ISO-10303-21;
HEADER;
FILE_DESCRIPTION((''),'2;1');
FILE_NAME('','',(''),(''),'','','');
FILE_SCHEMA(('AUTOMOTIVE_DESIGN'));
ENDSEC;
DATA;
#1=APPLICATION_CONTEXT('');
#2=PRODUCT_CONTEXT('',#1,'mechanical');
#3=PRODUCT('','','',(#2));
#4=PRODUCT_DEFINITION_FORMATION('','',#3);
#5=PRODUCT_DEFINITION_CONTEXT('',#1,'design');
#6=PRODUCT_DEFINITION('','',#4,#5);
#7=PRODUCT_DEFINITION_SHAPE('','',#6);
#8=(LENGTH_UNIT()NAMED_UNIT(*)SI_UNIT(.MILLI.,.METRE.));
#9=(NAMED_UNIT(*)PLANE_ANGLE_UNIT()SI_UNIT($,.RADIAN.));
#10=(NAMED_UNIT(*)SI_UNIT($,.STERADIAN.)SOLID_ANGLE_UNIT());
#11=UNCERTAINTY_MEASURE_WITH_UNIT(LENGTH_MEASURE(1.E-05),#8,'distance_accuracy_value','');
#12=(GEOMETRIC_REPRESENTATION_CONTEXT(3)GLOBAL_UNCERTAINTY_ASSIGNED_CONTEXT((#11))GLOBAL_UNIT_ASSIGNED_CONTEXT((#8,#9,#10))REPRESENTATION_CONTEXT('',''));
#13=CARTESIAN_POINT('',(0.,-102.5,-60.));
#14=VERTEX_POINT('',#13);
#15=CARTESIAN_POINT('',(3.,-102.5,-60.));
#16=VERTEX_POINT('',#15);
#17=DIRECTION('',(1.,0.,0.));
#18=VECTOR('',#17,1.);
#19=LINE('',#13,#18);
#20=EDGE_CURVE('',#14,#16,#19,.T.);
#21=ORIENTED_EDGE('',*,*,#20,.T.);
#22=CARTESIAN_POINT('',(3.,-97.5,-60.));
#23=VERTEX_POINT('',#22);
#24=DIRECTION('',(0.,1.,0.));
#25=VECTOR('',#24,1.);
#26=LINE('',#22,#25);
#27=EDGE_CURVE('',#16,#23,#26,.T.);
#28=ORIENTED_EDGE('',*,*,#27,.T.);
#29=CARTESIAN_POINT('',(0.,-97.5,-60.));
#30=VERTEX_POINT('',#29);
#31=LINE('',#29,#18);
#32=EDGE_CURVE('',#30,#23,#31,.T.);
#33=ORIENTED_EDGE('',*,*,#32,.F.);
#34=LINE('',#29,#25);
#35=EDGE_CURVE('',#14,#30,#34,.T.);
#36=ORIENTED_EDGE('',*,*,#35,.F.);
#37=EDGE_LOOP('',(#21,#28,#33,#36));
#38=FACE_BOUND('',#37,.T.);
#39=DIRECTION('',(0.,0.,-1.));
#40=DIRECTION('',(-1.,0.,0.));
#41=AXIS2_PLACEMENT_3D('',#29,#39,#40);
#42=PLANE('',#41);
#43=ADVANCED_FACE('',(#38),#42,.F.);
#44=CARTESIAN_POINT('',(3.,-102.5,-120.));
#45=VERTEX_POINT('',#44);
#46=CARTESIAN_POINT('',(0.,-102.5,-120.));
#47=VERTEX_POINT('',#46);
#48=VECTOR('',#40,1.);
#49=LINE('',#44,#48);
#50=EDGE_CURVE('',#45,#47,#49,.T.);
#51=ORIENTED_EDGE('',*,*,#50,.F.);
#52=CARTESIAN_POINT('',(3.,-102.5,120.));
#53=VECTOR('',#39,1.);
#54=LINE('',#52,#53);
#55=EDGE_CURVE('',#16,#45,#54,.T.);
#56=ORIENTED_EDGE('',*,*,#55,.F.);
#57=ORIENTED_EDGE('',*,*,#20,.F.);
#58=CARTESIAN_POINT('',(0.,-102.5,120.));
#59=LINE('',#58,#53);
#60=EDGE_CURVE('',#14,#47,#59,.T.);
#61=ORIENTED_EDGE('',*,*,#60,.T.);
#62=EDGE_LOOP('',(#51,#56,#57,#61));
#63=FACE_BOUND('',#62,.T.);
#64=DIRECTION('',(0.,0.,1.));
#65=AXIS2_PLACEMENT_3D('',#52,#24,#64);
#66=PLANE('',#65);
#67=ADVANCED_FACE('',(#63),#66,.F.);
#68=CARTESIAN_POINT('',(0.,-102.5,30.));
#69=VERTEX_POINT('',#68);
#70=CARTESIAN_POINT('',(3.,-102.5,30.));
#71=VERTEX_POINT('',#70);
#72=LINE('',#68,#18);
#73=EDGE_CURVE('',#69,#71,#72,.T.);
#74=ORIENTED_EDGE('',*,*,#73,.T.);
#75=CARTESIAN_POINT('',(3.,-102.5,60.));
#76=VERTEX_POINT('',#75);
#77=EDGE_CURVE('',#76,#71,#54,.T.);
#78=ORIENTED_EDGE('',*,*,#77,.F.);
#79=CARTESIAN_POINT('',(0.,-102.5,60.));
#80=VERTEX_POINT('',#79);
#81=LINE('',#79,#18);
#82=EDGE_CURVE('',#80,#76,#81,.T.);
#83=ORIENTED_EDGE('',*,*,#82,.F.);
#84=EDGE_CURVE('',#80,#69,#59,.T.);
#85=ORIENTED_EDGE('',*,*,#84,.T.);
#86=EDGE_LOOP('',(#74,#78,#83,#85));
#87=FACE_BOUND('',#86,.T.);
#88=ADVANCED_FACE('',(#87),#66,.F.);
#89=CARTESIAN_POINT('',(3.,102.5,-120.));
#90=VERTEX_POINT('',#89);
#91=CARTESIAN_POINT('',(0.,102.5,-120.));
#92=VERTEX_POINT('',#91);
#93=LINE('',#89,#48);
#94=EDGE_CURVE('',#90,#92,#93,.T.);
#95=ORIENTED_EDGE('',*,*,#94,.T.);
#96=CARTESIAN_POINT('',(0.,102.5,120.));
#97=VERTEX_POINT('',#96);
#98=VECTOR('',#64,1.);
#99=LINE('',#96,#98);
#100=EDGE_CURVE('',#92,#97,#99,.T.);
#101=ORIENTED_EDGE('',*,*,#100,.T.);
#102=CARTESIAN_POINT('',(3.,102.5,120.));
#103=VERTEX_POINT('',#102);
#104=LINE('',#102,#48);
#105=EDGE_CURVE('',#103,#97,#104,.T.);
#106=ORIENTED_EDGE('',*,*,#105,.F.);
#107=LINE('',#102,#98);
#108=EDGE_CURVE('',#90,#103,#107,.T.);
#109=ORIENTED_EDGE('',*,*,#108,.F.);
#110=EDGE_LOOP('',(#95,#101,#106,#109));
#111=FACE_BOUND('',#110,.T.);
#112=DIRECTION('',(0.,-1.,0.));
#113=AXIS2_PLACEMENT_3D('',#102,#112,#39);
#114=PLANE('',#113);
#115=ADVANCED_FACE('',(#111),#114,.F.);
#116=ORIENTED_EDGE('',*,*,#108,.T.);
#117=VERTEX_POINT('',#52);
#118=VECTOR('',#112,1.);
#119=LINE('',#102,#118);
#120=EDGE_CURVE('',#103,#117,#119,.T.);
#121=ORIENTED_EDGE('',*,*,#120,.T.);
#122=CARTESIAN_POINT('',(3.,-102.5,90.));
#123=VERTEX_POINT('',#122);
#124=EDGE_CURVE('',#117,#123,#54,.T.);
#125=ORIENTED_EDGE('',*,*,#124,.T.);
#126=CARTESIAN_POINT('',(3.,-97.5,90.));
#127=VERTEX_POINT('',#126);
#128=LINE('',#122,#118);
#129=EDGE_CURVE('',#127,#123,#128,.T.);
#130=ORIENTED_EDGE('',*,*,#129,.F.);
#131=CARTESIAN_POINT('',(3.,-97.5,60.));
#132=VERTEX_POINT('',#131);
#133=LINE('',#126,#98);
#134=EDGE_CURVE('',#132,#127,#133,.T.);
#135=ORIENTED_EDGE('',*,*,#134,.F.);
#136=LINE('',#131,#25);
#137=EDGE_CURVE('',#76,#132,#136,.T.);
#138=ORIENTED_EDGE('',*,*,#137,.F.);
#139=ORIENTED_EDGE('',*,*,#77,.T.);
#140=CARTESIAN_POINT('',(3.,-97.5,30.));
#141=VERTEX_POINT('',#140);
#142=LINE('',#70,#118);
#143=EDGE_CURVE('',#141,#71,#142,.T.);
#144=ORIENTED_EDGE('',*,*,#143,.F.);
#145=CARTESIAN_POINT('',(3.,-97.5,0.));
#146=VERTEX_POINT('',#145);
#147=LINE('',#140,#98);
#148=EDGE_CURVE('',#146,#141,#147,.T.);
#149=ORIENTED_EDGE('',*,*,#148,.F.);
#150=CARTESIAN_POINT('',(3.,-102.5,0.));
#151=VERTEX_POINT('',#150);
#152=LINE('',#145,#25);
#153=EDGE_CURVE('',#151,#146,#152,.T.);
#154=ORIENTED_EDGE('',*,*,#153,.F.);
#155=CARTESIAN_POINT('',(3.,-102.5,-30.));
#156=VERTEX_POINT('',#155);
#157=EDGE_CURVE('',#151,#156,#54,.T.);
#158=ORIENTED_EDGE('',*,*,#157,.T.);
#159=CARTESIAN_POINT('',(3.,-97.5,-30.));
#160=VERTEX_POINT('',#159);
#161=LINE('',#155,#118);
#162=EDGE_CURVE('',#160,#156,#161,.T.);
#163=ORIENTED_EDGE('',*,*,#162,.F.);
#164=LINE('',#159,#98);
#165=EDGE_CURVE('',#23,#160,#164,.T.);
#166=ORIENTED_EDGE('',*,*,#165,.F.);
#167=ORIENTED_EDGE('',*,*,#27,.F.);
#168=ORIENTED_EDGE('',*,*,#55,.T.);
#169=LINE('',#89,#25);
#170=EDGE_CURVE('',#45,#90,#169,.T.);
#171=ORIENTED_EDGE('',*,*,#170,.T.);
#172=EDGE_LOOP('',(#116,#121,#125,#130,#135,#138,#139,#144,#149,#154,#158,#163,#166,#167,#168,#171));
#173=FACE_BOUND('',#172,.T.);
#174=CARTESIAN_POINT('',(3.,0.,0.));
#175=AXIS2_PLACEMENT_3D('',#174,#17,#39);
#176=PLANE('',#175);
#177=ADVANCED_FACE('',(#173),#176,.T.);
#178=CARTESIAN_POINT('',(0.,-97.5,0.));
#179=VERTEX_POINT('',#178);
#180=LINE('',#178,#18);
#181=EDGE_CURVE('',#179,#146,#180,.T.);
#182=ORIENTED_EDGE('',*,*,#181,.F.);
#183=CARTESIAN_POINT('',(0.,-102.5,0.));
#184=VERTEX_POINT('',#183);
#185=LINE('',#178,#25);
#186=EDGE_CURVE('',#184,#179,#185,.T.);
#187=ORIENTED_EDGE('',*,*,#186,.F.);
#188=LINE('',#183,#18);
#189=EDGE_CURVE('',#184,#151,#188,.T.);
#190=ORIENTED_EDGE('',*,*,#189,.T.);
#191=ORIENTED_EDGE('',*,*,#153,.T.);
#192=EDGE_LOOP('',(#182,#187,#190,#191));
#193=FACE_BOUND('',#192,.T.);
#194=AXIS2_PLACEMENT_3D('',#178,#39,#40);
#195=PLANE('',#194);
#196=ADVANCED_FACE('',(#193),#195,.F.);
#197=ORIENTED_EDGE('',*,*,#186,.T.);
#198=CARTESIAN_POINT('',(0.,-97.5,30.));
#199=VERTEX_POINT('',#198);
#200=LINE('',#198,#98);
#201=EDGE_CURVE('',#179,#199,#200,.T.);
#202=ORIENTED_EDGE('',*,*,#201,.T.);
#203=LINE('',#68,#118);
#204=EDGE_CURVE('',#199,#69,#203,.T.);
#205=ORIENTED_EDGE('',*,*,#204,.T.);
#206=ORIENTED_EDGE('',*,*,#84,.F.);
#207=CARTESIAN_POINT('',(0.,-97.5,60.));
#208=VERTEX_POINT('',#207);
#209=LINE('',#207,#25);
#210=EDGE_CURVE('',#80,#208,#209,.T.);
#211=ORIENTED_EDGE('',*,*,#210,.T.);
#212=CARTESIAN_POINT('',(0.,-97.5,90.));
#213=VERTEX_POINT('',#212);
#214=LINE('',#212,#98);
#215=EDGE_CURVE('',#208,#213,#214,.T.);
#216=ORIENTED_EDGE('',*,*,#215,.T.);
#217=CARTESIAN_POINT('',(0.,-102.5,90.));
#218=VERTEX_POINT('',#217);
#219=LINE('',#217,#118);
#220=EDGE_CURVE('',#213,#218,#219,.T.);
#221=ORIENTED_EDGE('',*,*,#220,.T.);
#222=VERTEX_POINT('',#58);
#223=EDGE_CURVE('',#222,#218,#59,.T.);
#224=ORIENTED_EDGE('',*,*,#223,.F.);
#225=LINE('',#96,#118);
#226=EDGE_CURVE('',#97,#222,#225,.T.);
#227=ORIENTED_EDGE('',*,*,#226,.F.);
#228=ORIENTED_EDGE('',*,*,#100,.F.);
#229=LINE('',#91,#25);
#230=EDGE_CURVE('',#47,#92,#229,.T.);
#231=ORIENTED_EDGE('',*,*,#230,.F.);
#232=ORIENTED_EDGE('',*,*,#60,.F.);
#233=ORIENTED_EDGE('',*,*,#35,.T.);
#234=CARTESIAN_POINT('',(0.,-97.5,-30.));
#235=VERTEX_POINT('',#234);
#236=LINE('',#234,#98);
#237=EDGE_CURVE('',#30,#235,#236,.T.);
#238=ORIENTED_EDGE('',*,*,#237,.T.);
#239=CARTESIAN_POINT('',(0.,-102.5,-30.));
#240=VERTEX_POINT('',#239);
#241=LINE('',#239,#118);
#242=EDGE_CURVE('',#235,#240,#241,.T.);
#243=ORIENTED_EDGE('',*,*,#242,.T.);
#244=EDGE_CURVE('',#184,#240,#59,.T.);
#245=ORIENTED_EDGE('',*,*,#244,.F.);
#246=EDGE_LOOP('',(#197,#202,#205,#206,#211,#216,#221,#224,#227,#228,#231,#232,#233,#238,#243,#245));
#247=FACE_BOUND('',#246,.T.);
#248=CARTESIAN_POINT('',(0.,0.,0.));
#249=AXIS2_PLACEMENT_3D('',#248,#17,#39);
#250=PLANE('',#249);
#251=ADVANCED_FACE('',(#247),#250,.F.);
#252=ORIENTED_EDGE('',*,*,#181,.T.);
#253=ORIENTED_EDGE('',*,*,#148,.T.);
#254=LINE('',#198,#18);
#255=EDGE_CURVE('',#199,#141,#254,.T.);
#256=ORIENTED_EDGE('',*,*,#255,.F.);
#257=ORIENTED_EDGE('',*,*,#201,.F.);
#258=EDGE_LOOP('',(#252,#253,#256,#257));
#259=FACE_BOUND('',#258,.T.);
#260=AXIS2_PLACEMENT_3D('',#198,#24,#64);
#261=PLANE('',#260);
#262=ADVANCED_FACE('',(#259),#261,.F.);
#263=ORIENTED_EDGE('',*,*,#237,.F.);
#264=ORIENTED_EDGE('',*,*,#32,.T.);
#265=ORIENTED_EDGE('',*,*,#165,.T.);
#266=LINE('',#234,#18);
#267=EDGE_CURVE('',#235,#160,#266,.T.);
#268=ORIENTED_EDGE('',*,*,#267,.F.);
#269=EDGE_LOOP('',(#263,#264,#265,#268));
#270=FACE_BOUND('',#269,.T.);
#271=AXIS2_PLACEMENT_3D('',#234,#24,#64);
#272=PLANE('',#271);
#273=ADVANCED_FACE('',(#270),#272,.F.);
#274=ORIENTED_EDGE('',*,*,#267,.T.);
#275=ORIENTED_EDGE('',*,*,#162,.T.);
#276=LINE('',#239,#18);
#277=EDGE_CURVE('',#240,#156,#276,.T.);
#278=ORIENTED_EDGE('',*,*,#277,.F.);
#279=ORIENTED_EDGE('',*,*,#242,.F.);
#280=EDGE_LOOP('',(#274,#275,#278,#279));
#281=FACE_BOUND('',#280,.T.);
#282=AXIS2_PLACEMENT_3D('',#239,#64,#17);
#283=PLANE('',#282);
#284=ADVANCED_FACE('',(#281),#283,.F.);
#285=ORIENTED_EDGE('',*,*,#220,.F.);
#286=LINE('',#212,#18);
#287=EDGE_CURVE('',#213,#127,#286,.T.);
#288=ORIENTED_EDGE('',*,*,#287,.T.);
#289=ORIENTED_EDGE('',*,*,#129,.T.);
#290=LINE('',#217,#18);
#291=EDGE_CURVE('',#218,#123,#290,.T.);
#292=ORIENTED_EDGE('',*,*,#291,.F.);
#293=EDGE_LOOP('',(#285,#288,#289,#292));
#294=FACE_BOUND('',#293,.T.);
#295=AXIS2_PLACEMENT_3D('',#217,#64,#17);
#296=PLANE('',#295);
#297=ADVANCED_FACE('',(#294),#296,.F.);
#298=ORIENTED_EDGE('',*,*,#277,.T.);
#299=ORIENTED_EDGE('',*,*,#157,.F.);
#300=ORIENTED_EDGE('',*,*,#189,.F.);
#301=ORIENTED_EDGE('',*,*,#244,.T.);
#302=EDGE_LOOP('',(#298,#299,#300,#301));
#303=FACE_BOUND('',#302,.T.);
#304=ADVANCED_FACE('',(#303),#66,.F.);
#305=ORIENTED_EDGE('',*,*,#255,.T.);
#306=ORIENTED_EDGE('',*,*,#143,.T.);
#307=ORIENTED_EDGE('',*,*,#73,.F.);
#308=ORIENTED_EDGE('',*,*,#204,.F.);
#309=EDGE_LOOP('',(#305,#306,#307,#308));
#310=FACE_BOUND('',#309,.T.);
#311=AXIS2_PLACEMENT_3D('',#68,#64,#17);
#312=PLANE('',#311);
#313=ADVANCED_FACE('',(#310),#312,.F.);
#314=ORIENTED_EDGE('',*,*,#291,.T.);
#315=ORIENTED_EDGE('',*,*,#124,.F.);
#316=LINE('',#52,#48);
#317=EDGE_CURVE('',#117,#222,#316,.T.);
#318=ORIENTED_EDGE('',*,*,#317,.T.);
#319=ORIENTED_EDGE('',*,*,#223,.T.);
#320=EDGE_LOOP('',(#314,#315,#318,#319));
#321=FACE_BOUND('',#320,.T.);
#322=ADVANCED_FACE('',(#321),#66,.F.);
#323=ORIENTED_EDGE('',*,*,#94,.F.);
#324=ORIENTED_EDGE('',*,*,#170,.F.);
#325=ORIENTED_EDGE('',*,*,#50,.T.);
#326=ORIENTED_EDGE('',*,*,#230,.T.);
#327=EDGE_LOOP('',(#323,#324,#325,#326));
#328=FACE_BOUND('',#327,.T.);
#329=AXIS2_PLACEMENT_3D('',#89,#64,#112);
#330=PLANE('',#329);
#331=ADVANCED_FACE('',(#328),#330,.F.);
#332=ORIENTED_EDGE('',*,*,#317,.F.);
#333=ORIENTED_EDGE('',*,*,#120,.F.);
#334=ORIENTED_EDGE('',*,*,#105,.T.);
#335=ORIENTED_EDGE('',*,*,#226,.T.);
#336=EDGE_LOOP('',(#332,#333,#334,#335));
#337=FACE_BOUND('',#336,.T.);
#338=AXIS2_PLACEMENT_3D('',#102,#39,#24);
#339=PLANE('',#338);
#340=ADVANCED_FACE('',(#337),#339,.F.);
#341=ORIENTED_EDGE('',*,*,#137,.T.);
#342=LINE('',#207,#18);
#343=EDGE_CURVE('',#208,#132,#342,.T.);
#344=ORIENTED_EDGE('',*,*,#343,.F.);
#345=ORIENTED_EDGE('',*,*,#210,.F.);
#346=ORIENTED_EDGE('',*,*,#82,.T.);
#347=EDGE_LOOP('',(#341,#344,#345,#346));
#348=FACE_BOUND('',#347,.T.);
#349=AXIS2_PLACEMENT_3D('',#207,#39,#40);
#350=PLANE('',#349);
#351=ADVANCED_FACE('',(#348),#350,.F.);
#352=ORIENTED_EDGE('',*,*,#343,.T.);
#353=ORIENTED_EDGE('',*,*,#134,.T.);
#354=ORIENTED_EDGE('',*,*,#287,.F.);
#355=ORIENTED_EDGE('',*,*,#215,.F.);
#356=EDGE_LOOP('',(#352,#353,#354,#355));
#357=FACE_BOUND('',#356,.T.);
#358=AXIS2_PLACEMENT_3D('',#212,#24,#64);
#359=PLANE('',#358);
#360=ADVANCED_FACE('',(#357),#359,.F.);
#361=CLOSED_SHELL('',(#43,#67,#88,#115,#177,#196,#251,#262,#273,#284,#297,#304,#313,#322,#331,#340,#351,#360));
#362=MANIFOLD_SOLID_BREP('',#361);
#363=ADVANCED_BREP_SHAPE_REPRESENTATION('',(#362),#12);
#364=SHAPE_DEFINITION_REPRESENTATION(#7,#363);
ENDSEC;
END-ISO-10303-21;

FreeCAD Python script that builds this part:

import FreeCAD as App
import Part
import Sketcher
Q = App.Units.Quantity


def add_polygon(sketch, points):
    """Adds a closed chain of lines whose ends are joined by coincident constraints."""
    first, n = sketch.GeometryCount, len(points)
    for a, b in zip(points, points[1:] + points[:1]):
        sketch.addGeometry(Part.LineSegment(App.Vector(*a, 0), App.Vector(*b, 0)), False)
    for i in range(n):
        sketch.addConstraint(Sketcher.Constraint("Coincident", first + i, 2, first + (i + 1) % n, 1))

doc = App.newDocument("Part")
body = doc.addObject("PartDesign::Body", "Body")

# Sketch on YZ plane
sketch1 = doc.addObject("Sketcher::SketchObject", "Sketch")
body.addObject(sketch1)
sketch1.AttachmentSupport = (doc.YZ_Plane, [""])
sketch1.MapMode = "FlatFace"
add_polygon(sketch1, [(102, 120), (-102, 120), (-102, -120), (102, -120)])  # lines 0-3
sketch1.addConstraint(Sketcher.Constraint("Horizontal", 0))
sketch1.addConstraint(Sketcher.Constraint("Vertical", 1))
sketch1.addConstraint(Sketcher.Constraint("Horizontal", 2))
sketch1.addConstraint(Sketcher.Constraint("Vertical", 3))
sketch1.addConstraint(Sketcher.Constraint("Symmetric", 0, 2, 2, 2, -1, 1))
sketch1.addConstraint(Sketcher.Constraint("DistanceX", 0, 2, 0, 1, Q("205 mm")))
sketch1.addConstraint(Sketcher.Constraint("DistanceY", 1, 2, 1, 1, Q("240 mm")))
pad1 = doc.addObject("PartDesign::Pad", "Pad")
body.addObject(pad1)
pad1.Profile = sketch1
pad1.Length = 3

# Sketch on YZ plane
sketch2 = doc.addObject("Sketcher::SketchObject", "Sketch001")
body.addObject(sketch2)
sketch2.AttachmentSupport = (doc.YZ_Plane, [""])
sketch2.MapMode = "FlatFace"
sketch2.AttachmentOffset = App.Placement(App.Vector(0, 0, 3), App.Rotation())
add_polygon(sketch2, [(-98, 90), (-102, 90), (-102, 60), (-98, 60)])  # lines 0-3
add_polygon(sketch2, [(-98, 30), (-102, 30), (-102, 0), (-98, 0)])  # lines 4-7
add_polygon(sketch2, [(-98, -30), (-102, -30), (-102, -60), (-98, -60)])  # lines 8-11
sketch2.addConstraint(Sketcher.Constraint("Horizontal", 0))
sketch2.addConstraint(Sketcher.Constraint("Vertical", 1))
sketch2.addConstraint(Sketcher.Constraint("Horizontal", 2))
sketch2.addConstraint(Sketcher.Constraint("Vertical", 3))
sketch2.addConstraint(Sketcher.Constraint("Horizontal", 4))
sketch2.addConstraint(Sketcher.Constraint("Vertical", 5))
sketch2.addConstraint(Sketcher.Constraint("Horizontal", 6))
sketch2.addConstraint(Sketcher.Constraint("Vertical", 7))
sketch2.addConstraint(Sketcher.Constraint("Horizontal", 8))
sketch2.addConstraint(Sketcher.Constraint("Vertical", 9))
sketch2.addConstraint(Sketcher.Constraint("Horizontal", 10))
sketch2.addConstraint(Sketcher.Constraint("Vertical", 11))
sketch2.addConstraint(Sketcher.Constraint("Symmetric", 4, 2, 8, 2, -1))
sketch2.addConstraint(Sketcher.Constraint("Symmetric", 1, 2, 9, 2, -1))
sketch2.addConstraint(Sketcher.Constraint("PointOnObject", 5, 2, -1))
sketch2.addConstraint(Sketcher.Constraint("Vertical", 3, 2, 6, 2))
sketch2.addConstraint(Sketcher.Constraint("Vertical", 7, 2, 10, 2))
sketch2.addConstraint(Sketcher.Constraint("Equal", 3, 5))
sketch2.addConstraint(Sketcher.Constraint("Equal", 7, 9))
sketch2.addConstraint(Sketcher.Constraint("DistanceX", 0, 2, 0, 1, Q("5 mm")))
sketch2.addConstraint(Sketcher.Constraint("DistanceY", 1, 2, 1, 1, Q("30 mm")))
sketch2.addConstraint(Sketcher.Constraint("DistanceX", 0, 2, -1, 1, Q("102.5 mm")))
pocket1 = doc.addObject("PartDesign::Pocket", "Pocket")
body.addObject(pocket1)
pocket1.Profile = sketch2
pocket1.Length = 3

doc.recompute()
